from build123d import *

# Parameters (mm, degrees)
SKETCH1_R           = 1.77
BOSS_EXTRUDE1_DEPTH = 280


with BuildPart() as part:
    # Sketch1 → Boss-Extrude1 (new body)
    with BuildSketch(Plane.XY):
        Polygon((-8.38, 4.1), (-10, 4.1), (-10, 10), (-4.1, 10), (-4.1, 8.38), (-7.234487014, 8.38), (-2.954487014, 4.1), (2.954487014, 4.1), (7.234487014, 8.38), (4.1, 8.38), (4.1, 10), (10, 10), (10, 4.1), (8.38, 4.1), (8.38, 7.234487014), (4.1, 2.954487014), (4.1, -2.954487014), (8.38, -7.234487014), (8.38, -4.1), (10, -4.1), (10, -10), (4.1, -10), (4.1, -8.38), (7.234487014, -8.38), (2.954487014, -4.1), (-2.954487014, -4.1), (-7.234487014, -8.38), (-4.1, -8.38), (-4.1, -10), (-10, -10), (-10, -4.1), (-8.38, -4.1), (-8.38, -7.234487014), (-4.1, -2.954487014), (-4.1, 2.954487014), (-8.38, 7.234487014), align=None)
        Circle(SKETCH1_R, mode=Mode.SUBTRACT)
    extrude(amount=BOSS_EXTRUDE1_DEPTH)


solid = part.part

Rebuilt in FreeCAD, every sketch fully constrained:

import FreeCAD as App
import Part
import Sketcher

V = App.Vector

doc = App.newDocument("Part")
params = doc.addObject("Spreadsheet::Sheet", "Params")
for row, (alias, value) in enumerate([
    ("sketch1_diameter", "3.54 mm"),
    ("sketch1_width", "5.9 mm"),
    ("sketch1_width2", "1.62 mm"),
    ("pad1_length", "280 mm"),
], start=1):
    params.set(f"A{row}", alias)
    params.set(f"B{row}", "=" + value)
    params.setAlias(f"B{row}", alias)

body = doc.addObject("PartDesign::Body", "Body")

# Sketch on XY plane
sketch1 = body.newObject("Sketcher::SketchObject", "Sketch")
sketch1.AttachmentSupport = (doc.getObject("XY_Plane"), [""])
sketch1.MapMode = "FlatFace"
sketch1.addGeometry([
    Part.LineSegment(V(-10, 4.1, 0), V(-8.4, 4.1, 0)),  # 0
    Part.LineSegment(V(-8.4, 4.1, 0), V(-8.4, 7.2, 0)),  # 1
    Part.LineSegment(V(-8.4, 7.2, 0), V(-4.1, 3, 0)),  # 2
    Part.LineSegment(V(-4.1, 3, 0), V(-4.1, -3, 0)),  # 3
    Part.LineSegment(V(-4.1, -3, 0), V(-8.4, -7.2, 0)),  # 4
    Part.LineSegment(V(-8.4, -7.2, 0), V(-8.4, -4.1, 0)),  # 5
    Part.LineSegment(V(-8.4, -4.1, 0), V(-10, -4.1, 0)),  # 6
    Part.LineSegment(V(-10, -4.1, 0), V(-10, -10, 0)),  # 7
    Part.LineSegment(V(-10, -10, 0), V(-4.1, -10, 0)),  # 8
    Part.LineSegment(V(-4.1, -10, 0), V(-4.1, -8.4, 0)),  # 9
    Part.LineSegment(V(-4.1, -8.4, 0), V(-7.2, -8.4, 0)),  # 10
    Part.LineSegment(V(-7.2, -8.4, 0), V(-3, -4.1, 0)),  # 11
    Part.LineSegment(V(-3, -4.1, 0), V(3, -4.1, 0)),  # 12
    Part.LineSegment(V(3, -4.1, 0), V(7.2, -8.4, 0)),  # 13
    Part.LineSegment(V(7.2, -8.4, 0), V(4.1, -8.4, 0)),  # 14
    Part.LineSegment(V(4.1, -8.4, 0), V(4.1, -10, 0)),  # 15
    Part.LineSegment(V(4.1, -10, 0), V(10, -10, 0)),  # 16
    Part.LineSegment(V(10, -10, 0), V(10, -4.1, 0)),  # 17
    Part.LineSegment(V(10, -4.1, 0), V(8.4, -4.1, 0)),  # 18
    Part.LineSegment(V(8.4, -4.1, 0), V(8.4, -7.2, 0)),  # 19
    Part.LineSegment(V(8.4, -7.2, 0), V(4.1, -3, 0)),  # 20
    Part.LineSegment(V(4.1, -3, 0), V(4.1, 3, 0)),  # 21
    Part.LineSegment(V(4.1, 3, 0), V(8.4, 7.2, 0)),  # 22
    Part.LineSegment(V(8.4, 7.2, 0), V(8.4, 4.1, 0)),  # 23
    Part.LineSegment(V(8.4, 4.1, 0), V(10, 4.1, 0)),  # 24
    Part.LineSegment(V(10, 4.1, 0), V(10, 10, 0)),  # 25
    Part.LineSegment(V(10, 10, 0), V(4.1, 10, 0)),  # 26
    Part.LineSegment(V(4.1, 10, 0), V(4.1, 8.4, 0)),  # 27
    Part.LineSegment(V(4.1, 8.4, 0), V(7.2, 8.4, 0)),  # 28
    Part.LineSegment(V(7.2, 8.4, 0), V(3, 4.1, 0)),  # 29
    Part.LineSegment(V(3, 4.1, 0), V(-3, 4.1, 0)),  # 30
    Part.LineSegment(V(-3, 4.1, 0), V(-7.2, 8.4, 0)),  # 31
    Part.LineSegment(V(-7.2, 8.4, 0), V(-4.1, 8.4, 0)),  # 32
    Part.LineSegment(V(-4.1, 8.4, 0), V(-4.1, 10, 0)),  # 33
    Part.LineSegment(V(-4.1, 10, 0), V(-10, 10, 0)),  # 34
    Part.LineSegment(V(-10, 10, 0), V(-10, 4.1, 0)),  # 35
    Part.Circle(V(0, 0, 0), V(0, 0, 1), 1.8),  # 36
], False)
sketch1.addConstraint([
    Sketcher.Constraint("Coincident", 0, 2, 1, 1),
    Sketcher.Constraint("Coincident", 1, 2, 2, 1),
    Sketcher.Constraint("Coincident", 2, 2, 3, 1),
    Sketcher.Constraint("Coincident", 3, 2, 4, 1),
    Sketcher.Constraint("Coincident", 4, 2, 5, 1),
    Sketcher.Constraint("Coincident", 5, 2, 6, 1),
    Sketcher.Constraint("Coincident", 6, 2, 7, 1),
    Sketcher.Constraint("Coincident", 7, 2, 8, 1),
    Sketcher.Constraint("Coincident", 8, 2, 9, 1),
    Sketcher.Constraint("Coincident", 9, 2, 10, 1),
    Sketcher.Constraint("Coincident", 10, 2, 11, 1),
    Sketcher.Constraint("Coincident", 11, 2, 12, 1),
    Sketcher.Constraint("Coincident", 12, 2, 13, 1),
    Sketcher.Constraint("Coincident", 13, 2, 14, 1),
    Sketcher.Constraint("Coincident", 14, 2, 15, 1),
    Sketcher.Constraint("Coincident", 15, 2, 16, 1),
    Sketcher.Constraint("Coincident", 16, 2, 17, 1),
    Sketcher.Constraint("Coincident", 17, 2, 18, 1),
    Sketcher.Constraint("Coincident", 18, 2, 19, 1),
    Sketcher.Constraint("Coincident", 19, 2, 20, 1),
    Sketcher.Constraint("Coincident", 20, 2, 21, 1),
    Sketcher.Constraint("Coincident", 21, 2, 22, 1),
    Sketcher.Constraint("Coincident", 22, 2, 23, 1),
    Sketcher.Constraint("Coincident", 23, 2, 24, 1),
    Sketcher.Constraint("Coincident", 24, 2, 25, 1),
    Sketcher.Constraint("Coincident", 25, 2, 26, 1),
    Sketcher.Constraint("Coincident", 26, 2, 27, 1),
    Sketcher.Constraint("Coincident", 27, 2, 28, 1),
    Sketcher.Constraint("Coincident", 28, 2, 29, 1),
    Sketcher.Constraint("Coincident", 29, 2, 30, 1),
    Sketcher.Constraint("Coincident", 30, 2, 31, 1),
    Sketcher.Constraint("Coincident", 31, 2, 32, 1),
    Sketcher.Constraint("Coincident", 32, 2, 33, 1),
    Sketcher.Constraint("Coincident", 33, 2, 34, 1),
    Sketcher.Constraint("Coincident", 34, 2, 35, 1),
    Sketcher.Constraint("Coincident", 35, 2, 0, 1),
    Sketcher.Constraint("Horizontal", 0),
    Sketcher.Constraint("Vertical", 1),
    Sketcher.Constraint("Vertical", 3),
    Sketcher.Constraint("Vertical", 5),
    Sketcher.Constraint("Horizontal", 6),
    Sketcher.Constraint("Vertical", 7),
    Sketcher.Constraint("Horizontal", 8),
    Sketcher.Constraint("Vertical", 9),
    Sketcher.Constraint("Horizontal", 10),
    Sketcher.Constraint("Horizontal", 12),
    Sketcher.Constraint("Horizontal", 14),
    Sketcher.Constraint("Vertical", 15),
    Sketcher.Constraint("Horizontal", 16),
    Sketcher.Constraint("Vertical", 17),
    Sketcher.Constraint("Horizontal", 18),
    Sketcher.Constraint("Vertical", 19),
    Sketcher.Constraint("Vertical", 21),
    Sketcher.Constraint("Vertical", 23),
    Sketcher.Constraint("Horizontal", 24),
    Sketcher.Constraint("Vertical", 25),
    Sketcher.Constraint("Horizontal", 26),
    Sketcher.Constraint("Vertical", 27),
    Sketcher.Constraint("Horizontal", 28),
    Sketcher.Constraint("Horizontal", 30),
    Sketcher.Constraint("Horizontal", 32),
    Sketcher.Constraint("Vertical", 33),
    Sketcher.Constraint("Horizontal", 34),
    Sketcher.Constraint("Vertical", 35),
    Sketcher.Constraint("Coincident", 36, 3, -1, 1),
    Sketcher.Constraint("Symmetric", 0, 2, 18, 2, -1, 1),
    Sketcher.Constraint("Symmetric", 2, 2, 20, 2, -1, 1),
    Sketcher.Constraint("Symmetric", 4, 2, 22, 2, -1, 1),
    Sketcher.Constraint("Symmetric", 6, 2, 24, 2, -1, 1),
    Sketcher.Constraint("Symmetric", 8, 2, 26, 2, -1, 1),
    Sketcher.Constraint("Symmetric", 10, 2, 28, 2, -1, 1),
    Sketcher.Constraint("Symmetric", 11, 2, 29, 2, -1, 1),
    Sketcher.Constraint("Symmetric", 13, 2, 31, 2, -1, 1),
    Sketcher.Constraint("Symmetric", 15, 2, 33, 2, -1, 1),
    Sketcher.Constraint("Symmetric", 10, 2, 13, 2, -2),
    Sketcher.Constraint("Symmetric", 8, 2, 15, 2, -2),
    Sketcher.Constraint("Symmetric", 6, 2, 17, 2, -2),
    Sketcher.Constraint("Symmetric", 4, 2, 19, 2, -2),
    Sketcher.Constraint("Perpendicular", 2, 4),
    Sketcher.Constraint("Parallel", 4, 11),
    Sketcher.Constraint("Perpendicular", 11, 13),
    Sketcher.Constraint("Parallel", 13, 20),
    Sketcher.Constraint("Perpendicular", 20, 22),
    Sketcher.Constraint("Perpendicular", 29, 31),
    Sketcher.Constraint("Horizontal", 6, 2, 11, 2),
    Sketcher.Constraint("Horizontal", 3, 2, 20, 2),
    Sketcher.Constraint("Vertical", 3, 2, 8, 2),
    Sketcher.Constraint("Vertical", 7, 2, 34, 2),
    Sketcher.Constraint("Equal", 32, 1),
    Sketcher.Constraint("Equal", 30, 3),
    Sketcher.Constraint("Equal", 34, 7),
    Sketcher.Constraint("Equal", 24, 9),
    Sketcher.Constraint("Diameter", 36, 3.54),
    Sketcher.Constraint("DistanceX", 8, 1, 8, 2, 5.9),
    Sketcher.Constraint("DistanceX", 6, 2, -1, 1, 10.0),
    Sketcher.Constraint("DistanceX", 0, 1, 0, 2, 1.62),
    Sketcher.Constraint("DistanceX", 10, 2, 10, 1, 3.134487),
])
sketch1.setExpression("Constraints[92]", "Params.sketch1_diameter")
sketch1.setExpression("Constraints[93]", "Params.sketch1_width")
sketch1.setExpression("Constraints[95]", "Params.sketch1_width2")
pad1 = body.newObject("PartDesign::Pad", "Pad")
pad1.Profile = sketch1
pad1.setExpression("Length", "Params.pad1_length")

doc.recompute()
